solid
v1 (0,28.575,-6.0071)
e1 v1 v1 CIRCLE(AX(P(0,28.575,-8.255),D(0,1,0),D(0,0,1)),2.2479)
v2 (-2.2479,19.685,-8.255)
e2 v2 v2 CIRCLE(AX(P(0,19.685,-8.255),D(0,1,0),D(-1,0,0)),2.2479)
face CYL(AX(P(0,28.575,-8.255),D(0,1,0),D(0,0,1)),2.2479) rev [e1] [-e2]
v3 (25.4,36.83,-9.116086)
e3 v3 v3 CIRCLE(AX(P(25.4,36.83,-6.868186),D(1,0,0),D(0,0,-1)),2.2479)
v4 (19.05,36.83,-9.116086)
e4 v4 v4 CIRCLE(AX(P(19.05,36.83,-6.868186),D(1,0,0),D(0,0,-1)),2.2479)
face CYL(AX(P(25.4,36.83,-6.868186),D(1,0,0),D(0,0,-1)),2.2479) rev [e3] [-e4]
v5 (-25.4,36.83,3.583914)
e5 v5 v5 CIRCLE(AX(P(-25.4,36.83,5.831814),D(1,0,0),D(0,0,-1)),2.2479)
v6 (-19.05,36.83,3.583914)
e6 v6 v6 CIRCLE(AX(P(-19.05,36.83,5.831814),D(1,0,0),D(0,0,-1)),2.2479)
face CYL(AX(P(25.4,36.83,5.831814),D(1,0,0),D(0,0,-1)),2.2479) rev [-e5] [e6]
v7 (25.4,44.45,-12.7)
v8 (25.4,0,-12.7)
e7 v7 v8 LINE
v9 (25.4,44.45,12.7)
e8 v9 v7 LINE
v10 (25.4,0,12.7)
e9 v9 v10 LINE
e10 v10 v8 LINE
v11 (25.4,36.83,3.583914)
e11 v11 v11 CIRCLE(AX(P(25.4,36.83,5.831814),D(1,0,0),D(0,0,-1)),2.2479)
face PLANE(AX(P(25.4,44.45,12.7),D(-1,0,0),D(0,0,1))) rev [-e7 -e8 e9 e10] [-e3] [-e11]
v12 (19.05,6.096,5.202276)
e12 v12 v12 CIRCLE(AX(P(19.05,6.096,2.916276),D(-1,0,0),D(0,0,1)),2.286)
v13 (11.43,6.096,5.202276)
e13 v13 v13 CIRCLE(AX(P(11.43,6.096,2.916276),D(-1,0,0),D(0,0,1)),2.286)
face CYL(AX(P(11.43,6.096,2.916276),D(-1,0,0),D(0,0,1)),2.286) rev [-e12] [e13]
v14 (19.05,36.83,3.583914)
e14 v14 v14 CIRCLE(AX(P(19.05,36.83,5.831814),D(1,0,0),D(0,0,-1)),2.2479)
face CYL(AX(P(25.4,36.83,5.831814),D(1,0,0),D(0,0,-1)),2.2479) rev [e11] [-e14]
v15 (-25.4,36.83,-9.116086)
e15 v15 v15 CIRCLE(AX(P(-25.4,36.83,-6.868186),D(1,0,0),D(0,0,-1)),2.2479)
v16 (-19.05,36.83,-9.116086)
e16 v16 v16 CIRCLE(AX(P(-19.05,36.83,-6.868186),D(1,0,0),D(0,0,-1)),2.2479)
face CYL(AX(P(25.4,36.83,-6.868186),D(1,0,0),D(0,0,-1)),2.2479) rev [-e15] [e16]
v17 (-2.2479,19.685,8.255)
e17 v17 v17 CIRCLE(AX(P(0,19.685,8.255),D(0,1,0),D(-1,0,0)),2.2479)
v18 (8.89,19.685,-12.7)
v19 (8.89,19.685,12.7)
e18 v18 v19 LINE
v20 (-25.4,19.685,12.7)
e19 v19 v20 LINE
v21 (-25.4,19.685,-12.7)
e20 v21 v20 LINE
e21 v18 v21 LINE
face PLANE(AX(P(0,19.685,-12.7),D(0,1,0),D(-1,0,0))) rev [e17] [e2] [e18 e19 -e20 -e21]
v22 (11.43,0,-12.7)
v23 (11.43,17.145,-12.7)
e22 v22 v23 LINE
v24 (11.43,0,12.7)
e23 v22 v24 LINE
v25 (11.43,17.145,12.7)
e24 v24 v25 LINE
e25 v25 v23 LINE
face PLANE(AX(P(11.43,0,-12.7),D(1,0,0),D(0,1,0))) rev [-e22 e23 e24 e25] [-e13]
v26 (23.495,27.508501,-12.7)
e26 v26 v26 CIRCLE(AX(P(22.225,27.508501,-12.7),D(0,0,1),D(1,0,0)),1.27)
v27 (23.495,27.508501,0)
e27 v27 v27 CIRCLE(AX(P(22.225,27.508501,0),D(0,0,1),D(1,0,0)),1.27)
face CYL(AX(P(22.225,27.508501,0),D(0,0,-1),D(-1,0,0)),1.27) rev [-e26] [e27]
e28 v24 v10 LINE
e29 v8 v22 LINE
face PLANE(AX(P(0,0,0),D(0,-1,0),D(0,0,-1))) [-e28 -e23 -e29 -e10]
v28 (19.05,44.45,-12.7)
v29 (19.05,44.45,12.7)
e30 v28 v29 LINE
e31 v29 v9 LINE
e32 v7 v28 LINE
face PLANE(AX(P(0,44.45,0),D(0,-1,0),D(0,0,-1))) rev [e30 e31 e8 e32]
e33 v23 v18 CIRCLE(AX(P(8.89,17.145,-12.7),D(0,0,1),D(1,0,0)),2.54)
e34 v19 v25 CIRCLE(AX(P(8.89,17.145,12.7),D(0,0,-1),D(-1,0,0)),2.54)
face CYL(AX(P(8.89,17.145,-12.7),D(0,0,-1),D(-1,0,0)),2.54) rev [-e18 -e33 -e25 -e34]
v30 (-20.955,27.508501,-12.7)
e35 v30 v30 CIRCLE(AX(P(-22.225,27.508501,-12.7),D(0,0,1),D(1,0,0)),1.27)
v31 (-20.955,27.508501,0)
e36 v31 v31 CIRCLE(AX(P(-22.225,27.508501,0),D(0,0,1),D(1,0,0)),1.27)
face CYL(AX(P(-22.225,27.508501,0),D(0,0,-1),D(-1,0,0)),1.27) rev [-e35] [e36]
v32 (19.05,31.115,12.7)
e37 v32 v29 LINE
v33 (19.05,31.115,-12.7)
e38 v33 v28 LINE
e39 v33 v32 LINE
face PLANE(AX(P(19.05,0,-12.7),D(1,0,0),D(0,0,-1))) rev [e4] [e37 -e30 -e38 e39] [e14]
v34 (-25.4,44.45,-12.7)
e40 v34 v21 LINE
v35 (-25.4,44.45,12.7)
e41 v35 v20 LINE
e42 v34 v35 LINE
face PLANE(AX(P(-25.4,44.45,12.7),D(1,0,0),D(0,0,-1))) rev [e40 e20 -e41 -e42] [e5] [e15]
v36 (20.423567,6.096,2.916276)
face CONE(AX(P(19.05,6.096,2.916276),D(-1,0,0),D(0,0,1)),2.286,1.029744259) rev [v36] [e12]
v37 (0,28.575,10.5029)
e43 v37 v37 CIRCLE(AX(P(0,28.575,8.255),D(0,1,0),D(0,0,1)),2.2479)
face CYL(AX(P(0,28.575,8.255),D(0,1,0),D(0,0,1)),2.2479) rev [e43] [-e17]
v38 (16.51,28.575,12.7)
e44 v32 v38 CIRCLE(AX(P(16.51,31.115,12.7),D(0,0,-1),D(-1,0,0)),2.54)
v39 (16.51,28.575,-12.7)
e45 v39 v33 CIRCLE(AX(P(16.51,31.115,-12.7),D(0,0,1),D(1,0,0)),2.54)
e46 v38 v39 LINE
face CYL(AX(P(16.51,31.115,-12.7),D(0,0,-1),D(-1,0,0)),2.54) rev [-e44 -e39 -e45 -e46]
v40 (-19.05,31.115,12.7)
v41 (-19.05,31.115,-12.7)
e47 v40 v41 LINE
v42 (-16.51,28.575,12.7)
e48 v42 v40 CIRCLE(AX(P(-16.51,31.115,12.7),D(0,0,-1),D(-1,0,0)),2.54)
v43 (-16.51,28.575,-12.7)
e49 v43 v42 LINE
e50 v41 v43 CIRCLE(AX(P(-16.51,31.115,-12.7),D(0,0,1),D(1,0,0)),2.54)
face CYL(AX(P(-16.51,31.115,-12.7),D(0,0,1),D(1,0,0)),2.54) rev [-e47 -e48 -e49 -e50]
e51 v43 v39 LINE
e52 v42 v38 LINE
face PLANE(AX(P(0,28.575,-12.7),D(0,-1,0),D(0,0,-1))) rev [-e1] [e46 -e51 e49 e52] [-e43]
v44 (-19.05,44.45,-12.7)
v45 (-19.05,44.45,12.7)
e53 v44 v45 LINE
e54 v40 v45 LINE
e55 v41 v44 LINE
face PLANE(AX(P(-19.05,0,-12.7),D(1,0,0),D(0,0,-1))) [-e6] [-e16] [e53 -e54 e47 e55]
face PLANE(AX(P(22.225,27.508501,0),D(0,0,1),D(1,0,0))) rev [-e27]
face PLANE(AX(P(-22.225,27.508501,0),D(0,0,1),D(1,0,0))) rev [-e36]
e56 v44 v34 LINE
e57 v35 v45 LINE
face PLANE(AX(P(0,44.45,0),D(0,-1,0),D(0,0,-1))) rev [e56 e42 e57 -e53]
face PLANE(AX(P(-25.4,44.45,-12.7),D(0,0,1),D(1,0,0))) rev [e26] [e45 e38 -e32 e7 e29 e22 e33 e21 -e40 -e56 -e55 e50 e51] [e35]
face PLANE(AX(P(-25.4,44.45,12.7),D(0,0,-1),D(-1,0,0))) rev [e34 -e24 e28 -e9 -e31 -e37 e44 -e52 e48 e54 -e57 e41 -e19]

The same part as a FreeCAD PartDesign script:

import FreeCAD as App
import Part
import Sketcher
from FreeCAD import Vector
Q = App.Units.Quantity


def edges_at(feature, points):
    """Names of the edges that pass closest to the given points."""
    edges = feature.Shape.Edges
    near = lambda p: min(range(len(edges)), key=lambda i: edges[i].distToShape(Part.Vertex(*p))[0])
    return sorted({f"Edge{near(p) + 1}" for p in points})


def add_polygon(sketch, points):
    """Adds a closed chain of lines whose ends are joined by coincident constraints."""
    first, n = sketch.GeometryCount, len(points)
    for a, b in zip(points, points[1:] + points[:1]):
        sketch.addGeometry(Part.LineSegment(App.Vector(*a, 0), App.Vector(*b, 0)), False)
    for i in range(n):
        sketch.addConstraint(Sketcher.Constraint("Coincident", first + i, 2, first + (i + 1) % n, 1))

doc = App.newDocument("Part")
body = doc.addObject("PartDesign::Body", "Body")

# Sketch on XZ plane
sketch1 = doc.addObject("Sketcher::SketchObject", "Sketch")
body.addObject(sketch1)
sketch1.AttachmentSupport = (doc.XZ_Plane, [""])
sketch1.MapMode = "FlatFace"
add_polygon(sketch1, [(-25, -13), (-25, 13), (25, 13), (25, -13)])  # lines 0-3
sketch1.addConstraint([
    Sketcher.Constraint("Vertical", 0),
    Sketcher.Constraint("Horizontal", 1),
    Sketcher.Constraint("Vertical", 2),
    Sketcher.Constraint("Horizontal", 3),
    Sketcher.Constraint("Symmetric", 0, 2, 2, 2, -1, 1),
    Sketcher.Constraint("DistanceX", 1, 1, 1, 2, Q("2 in")),
    Sketcher.Constraint("DistanceY", 0, 1, 0, 2, Q("1 in")),
])
pad1 = doc.addObject("PartDesign::Pad", "Pad")
body.addObject(pad1)
pad1.Profile = sketch1
pad1.Length = Q("1.75 in")
pad1.Reversed = True

# Sketch on XY plane
sketch2 = doc.addObject("Sketcher::SketchObject", "Sketch001")
body.addObject(sketch2)
sketch2.AttachmentSupport = (doc.XY_Plane, [""])
sketch2.MapMode = "FlatFace"
sketch2.AttachmentOffset = App.Placement(Vector(0, 0, 0.5 * 25.4), App.Rotation())
add_polygon(sketch2, [(-25, 20), (-25, 0), (11, 0), (11, 20)])  # lines 0-3
add_polygon(sketch2, [(-19, 44), (-19, 29), (19, 29), (19, 44)])  # lines 4-7
sketch2.addConstraint([
    Sketcher.Constraint("Vertical", 0),
    Sketcher.Constraint("Horizontal", 1),
    Sketcher.Constraint("Vertical", 2),
    Sketcher.Constraint("Horizontal", 3),
    Sketcher.Constraint("Vertical", 4),
    Sketcher.Constraint("Horizontal", 5),
    Sketcher.Constraint("Vertical", 6),
    Sketcher.Constraint("Horizontal", 7),
    Sketcher.Constraint("PointOnObject", 0, 2, -1),
    Sketcher.Constraint("DistanceX", 5, 1, 5, 2, Q("1.5 in")),
    Sketcher.Constraint("DistanceX", 0, 2, -1, 1, Q("1 in")),
    Sketcher.Constraint("DistanceX", 1, 1, 1, 2, Q("1.45 in")),
    Sketcher.Constraint("DistanceX", 4, 2, 2, 2, Q("1.2 in")),
    Sketcher.Constraint("DistanceY", 0, 2, 0, 1, Q("0.775 in")),
    Sketcher.Constraint("DistanceY", 4, 2, 4, 1, Q("0.625 in")),
    Sketcher.Constraint("DistanceY", -1, 1, 6, 2, Q("1.75 in")),
])
pocket1 = doc.addObject("PartDesign::Pocket", "Pocket")
body.addObject(pocket1)
pocket1.Profile = sketch2
pocket1.Type = "ThroughAll"

# Sketch on YZ plane
sketch3 = doc.addObject("Sketcher::SketchObject", "Sketch002")
body.addObject(sketch3)
sketch3.AttachmentSupport = (doc.YZ_Plane, [""])
sketch3.MapMode = "FlatFace"
sketch3.AttachmentOffset = App.Placement(Vector(0, 0, 1 * 25.4), App.Rotation())
sketch3.addGeometry([
    Part.Circle(Vector(36.8, -6.9, 0), Vector(0, 0, 1), 2.2),
    Part.Circle(Vector(36.8, 5.8, 0), Vector(0, 0, 1), 2.2),
], False)
sketch3.addConstraint([
    Sketcher.Constraint("Equal", 0, 1),
    Sketcher.Constraint("Vertical", 0, 3, 1, 3),
    Sketcher.Constraint("Diameter", 0, Q("0.177 in")),
    Sketcher.Constraint("DistanceY", 0, 3, 1, 3, Q("0.5 in")),
    Sketcher.Constraint("DistanceX", -1, 1, 0, 3, Q("1.45 in")),
    Sketcher.Constraint("DistanceY", 0, 3, -1, 1, 6.868186),
])
doc.recompute()
hole = doc.addObject("PartDesign::Hole", "Hole")
body.addObject(hole)
hole.Profile = sketch3
hole.ThreadType = "None"
hole.Diameter = Q("0.177 in")
hole.DepthType = "ThroughAll"

# Sketch on XZ plane
sketch4 = doc.addObject("Sketcher::SketchObject", "Sketch003")
body.addObject(sketch4)
sketch4.AttachmentSupport = (doc.XZ_Plane, [""])
sketch4.MapMode = "FlatFace"
sketch4.AttachmentOffset = App.Placement(Vector(0, 0, -1.125 * 25.4), App.Rotation())
sketch4.addGeometry([
    Part.Circle(Vector(0, -8.3, 0), Vector(0, 0, 1), 2.2),
    Part.Circle(Vector(0, 8.3, 0), Vector(0, 0, 1), 2.2),
], False)
sketch4.addConstraint([
    Sketcher.Constraint("Equal", 0, 1),
    Sketcher.Constraint("Symmetric", 0, 3, 1, 3, -1, 1),
    Sketcher.Constraint("PointOnObject", 0, 3, -2),
    Sketcher.Constraint("Diameter", 0, Q("0.177 in")),
    Sketcher.Constraint("DistanceY", 0, 3, 1, 3, Q("0.65 in")),
])
doc.recompute()
hole2 = doc.addObject("PartDesign::Hole", "Hole001")
body.addObject(hole2)
hole2.Profile = sketch4
hole2.ThreadType = "None"
hole2.Diameter = Q("0.177 in")
hole2.DepthType = "ThroughAll"
hole2.Reversed = True

# Sketch on YZ plane
sketch5 = doc.addObject("Sketcher::SketchObject", "Sketch004")
body.addObject(sketch5)
sketch5.AttachmentSupport = (doc.YZ_Plane, [""])
sketch5.MapMode = "FlatFace"
sketch5.AttachmentOffset = App.Placement(Vector(0, 0, 0.45 * 25.4), App.Rotation())
sketch5.addGeometry(Part.Circle(Vector(6.1, 2.9, 0), Vector(0, 0, 1), 2.3), False)
sketch5.addConstraint([
    Sketcher.Constraint("Diameter", 0, Q("0.18 in")),
    Sketcher.Constraint("DistanceX", -1, 1, 0, 3, Q("0.24 in")),
    Sketcher.Constraint("DistanceY", -1, 1, 0, 3, 2.916276),
])
doc.recompute()
hole3 = doc.addObject("PartDesign::Hole", "Hole002")
body.addObject(hole3)
hole3.Profile = sketch5
hole3.ThreadType = "None"
hole3.Diameter = Q("0.18 in")
hole3.DepthType = "Dimension"
hole3.Depth = Q("0.3 in")
hole3.DrillPoint = "Angled"
hole3.DrillPointAngle = 118
hole3.Reversed = True
doc.recompute()

fillet = doc.addObject("PartDesign::Fillet", "Fillet")
body.addObject(fillet)
fillet.Base = (hole3, edges_at(hole3, [(11.43, 19.685, 0), (19.05, 28.575, 0), (-19.05, 28.575, 0)]))
fillet.Radius = Q("0.1 in")

# Sketch on XY plane
sketch6 = doc.addObject("Sketcher::SketchObject", "Sketch005")
body.addObject(sketch6)
sketch6.AttachmentSupport = (doc.XY_Plane, [""])
sketch6.MapMode = "FlatFace"
sketch6.AttachmentOffset = App.Placement(Vector(0, 0, -0.5 * 25.4), App.Rotation())
sketch6.addGeometry([
    Part.Circle(Vector(-22.2, 27.5, 0), Vector(0, 0, 1), 1.3),
    Part.Circle(Vector(22.2, 27.5, 0), Vector(0, 0, 1), 1.3),
], False)
sketch6.addConstraint([
    Sketcher.Constraint("Equal", 0, 1),
    Sketcher.Constraint("Symmetric", 0, 3, 1, 3, -2),
    Sketcher.Constraint("Diameter", 0, Q("0.1 in")),
    Sketcher.Constraint("DistanceX", 0, 3, 1, 3, Q("1.75 in")),
    Sketcher.Constraint("DistanceY", -1, 1, 0, 3, 27.508501),
])
pocket2 = doc.addObject("PartDesign::Pocket", "Pocket001")
body.addObject(pocket2)
pocket2.Profile = sketch6
pocket2.Length = Q("0.5 in")
pocket2.Reversed = True

doc.recompute()
